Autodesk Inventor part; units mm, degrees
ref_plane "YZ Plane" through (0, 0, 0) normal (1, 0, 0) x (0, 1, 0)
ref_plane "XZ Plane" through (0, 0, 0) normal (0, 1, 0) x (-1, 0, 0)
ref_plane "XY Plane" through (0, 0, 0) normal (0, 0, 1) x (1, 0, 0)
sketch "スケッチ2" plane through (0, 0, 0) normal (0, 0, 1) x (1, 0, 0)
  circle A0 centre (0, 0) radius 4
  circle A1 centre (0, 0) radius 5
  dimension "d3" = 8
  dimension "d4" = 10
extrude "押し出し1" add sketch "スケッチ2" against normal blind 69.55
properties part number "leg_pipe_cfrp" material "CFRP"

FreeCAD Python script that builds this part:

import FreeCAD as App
import Part
import Sketcher
Q = App.Units.Quantity

doc = App.newDocument("Part")
params = doc.addObject("Spreadsheet::Sheet", "Params")
for row, (alias, value) in enumerate([
    ("sketch1_diameter", "10 mm"),
    ("sketch1_diameter2", "8 mm"),
    ("pad1_length", "69.55 mm"),
], start=1):
    params.set(f"A{row}", alias)
    params.set(f"B{row}", "=" + value)
    params.setAlias(f"B{row}", alias)

body = doc.addObject("PartDesign::Body", "Body")

sketch1 = doc.addObject("Sketcher::SketchObject", "Sketch")
body.addObject(sketch1)
sketch1.AttachmentSupport = (doc.XY_Plane, [""])
sketch1.MapMode = "FlatFace"
sketch1.addGeometry([
    Part.Circle(App.Vector(0, 0, 0), App.Vector(0, 0, 1), 5),
    Part.Circle(App.Vector(0, 0, 0), App.Vector(0, 0, 1), 4),
], False)
sketch1.addConstraint([
    Sketcher.Constraint("Coincident", 0, 3, -1, 1),
    Sketcher.Constraint("Coincident", 1, 3, -1, 1),
    Sketcher.Constraint("Diameter", 0, Q("10 mm")),
    Sketcher.Constraint("Diameter", 1, Q("8 mm")),
])
sketch1.setExpression("Constraints[2]", "Params.sketch1_diameter")
sketch1.setExpression("Constraints[3]", "Params.sketch1_diameter2")
pad1 = doc.addObject("PartDesign::Pad", "Pad")
body.addObject(pad1)
pad1.Profile = sketch1
pad1.setExpression("Length", "Params.pad1_length")
pad1.Reversed = True

doc.recompute()
